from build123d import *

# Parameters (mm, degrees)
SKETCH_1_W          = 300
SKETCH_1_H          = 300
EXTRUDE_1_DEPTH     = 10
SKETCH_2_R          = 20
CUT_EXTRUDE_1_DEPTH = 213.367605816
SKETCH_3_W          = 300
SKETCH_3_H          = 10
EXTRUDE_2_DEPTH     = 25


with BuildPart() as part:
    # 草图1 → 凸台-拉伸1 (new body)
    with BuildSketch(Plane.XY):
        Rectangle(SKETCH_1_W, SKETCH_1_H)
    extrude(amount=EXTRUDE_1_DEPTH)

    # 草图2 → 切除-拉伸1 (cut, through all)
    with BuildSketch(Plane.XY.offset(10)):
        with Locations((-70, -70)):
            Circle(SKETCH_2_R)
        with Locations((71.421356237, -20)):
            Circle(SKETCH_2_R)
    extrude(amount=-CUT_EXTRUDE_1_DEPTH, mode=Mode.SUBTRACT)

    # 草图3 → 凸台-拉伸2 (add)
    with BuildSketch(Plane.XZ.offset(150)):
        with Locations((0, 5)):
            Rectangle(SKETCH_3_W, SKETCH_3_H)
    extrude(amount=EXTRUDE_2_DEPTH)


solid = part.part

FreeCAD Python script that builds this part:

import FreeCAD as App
import Part
import Sketcher
from FreeCAD import Vector
Q = App.Units.Quantity


def add_polygon(sketch, points):
    """Adds a closed chain of lines whose ends are joined by coincident constraints."""
    first, n = sketch.GeometryCount, len(points)
    for a, b in zip(points, points[1:] + points[:1]):
        sketch.addGeometry(Part.LineSegment(App.Vector(*a, 0), App.Vector(*b, 0)), False)
    for i in range(n):
        sketch.addConstraint(Sketcher.Constraint("Coincident", first + i, 2, first + (i + 1) % n, 1))

doc = App.newDocument("Part")
body = doc.addObject("PartDesign::Body", "Body")

# Sketch on XY plane
sketch1 = body.newObject("Sketcher::SketchObject", "Sketch")
sketch1.AttachmentSupport = (doc.getObject("XY_Plane"), [""])
sketch1.MapMode = "FlatFace"
add_polygon(sketch1, [(-150, 150), (-150, -150), (150, -150), (150, 150)])  # lines 0-3
sketch1.addConstraint(Sketcher.Constraint("Vertical", 0))
sketch1.addConstraint(Sketcher.Constraint("Horizontal", 1))
sketch1.addConstraint(Sketcher.Constraint("Vertical", 2))
sketch1.addConstraint(Sketcher.Constraint("Horizontal", 3))
sketch1.addConstraint(Sketcher.Constraint("Symmetric", 0, 2, 2, 2, -1, 1))
sketch1.addConstraint(Sketcher.Constraint("Equal", 3, 0))
sketch1.addConstraint(Sketcher.Constraint("DistanceX", 1, 1, 1, 2, Q("300 mm")))
pad1 = body.newObject("PartDesign::Pad", "Pad")
pad1.Profile = sketch1
pad1.Length = 10

# Sketch on XY plane
sketch2 = body.newObject("Sketcher::SketchObject", "Sketch001")
sketch2.AttachmentSupport = (doc.getObject("XY_Plane"), [""])
sketch2.MapMode = "FlatFace"
sketch2.AttachmentOffset = App.Placement(Vector(0, 0, 10), App.Rotation())
sketch2.addGeometry(Part.Circle(Vector(-70, -70, 0), Vector(0, 0, 1), 20), False)
sketch2.addGeometry(Part.Circle(Vector(71, -20, 0), Vector(0, 0, 1), 20), False)
sketch2.addConstraint(Sketcher.Constraint("Equal", 0, 1))
sketch2.addConstraint(Sketcher.Constraint("Diameter", 0, Q("40 mm")))
sketch2.addConstraint(Sketcher.Constraint("DistanceX", 0, 3, -1, 1, Q("70 mm")))
sketch2.addConstraint(Sketcher.Constraint("DistanceY", 0, 3, -1, 1, Q("70 mm")))
sketch2.addConstraint(Sketcher.Constraint("DistanceY", 1, 3, -1, 1, Q("20 mm")))
sketch2.addConstraint(Sketcher.Constraint("DistanceX", -1, 1, 1, 3, Q("71.421356 mm")))
pocket1 = body.newObject("PartDesign::Pocket", "Pocket")
pocket1.Profile = sketch2
pocket1.Type = "ThroughAll"

# Sketch on XZ plane
sketch3 = body.newObject("Sketcher::SketchObject", "Sketch002")
sketch3.AttachmentSupport = (doc.getObject("XZ_Plane"), [""])
sketch3.MapMode = "FlatFace"
sketch3.AttachmentOffset = App.Placement(Vector(0, 0, 150), App.Rotation())
add_polygon(sketch3, [(-150, 10), (-150, 0), (150, 0), (150, 10)])  # lines 0-3
sketch3.addConstraint(Sketcher.Constraint("Vertical", 0))
sketch3.addConstraint(Sketcher.Constraint("Horizontal", 1))
sketch3.addConstraint(Sketcher.Constraint("Vertical", 2))
sketch3.addConstraint(Sketcher.Constraint("Horizontal", 3))
sketch3.addConstraint(Sketcher.Constraint("Symmetric", 0, 2, 1, 2, -1, 1))
sketch3.addConstraint(Sketcher.Constraint("DistanceX", 1, 1, 1, 2, Q("300 mm")))
sketch3.addConstraint(Sketcher.Constraint("DistanceY", 0, 2, 0, 1, Q("10 mm")))
pad2 = body.newObject("PartDesign::Pad", "Pad001")
pad2.Profile = sketch3
pad2.Length = 25

doc.recompute()
